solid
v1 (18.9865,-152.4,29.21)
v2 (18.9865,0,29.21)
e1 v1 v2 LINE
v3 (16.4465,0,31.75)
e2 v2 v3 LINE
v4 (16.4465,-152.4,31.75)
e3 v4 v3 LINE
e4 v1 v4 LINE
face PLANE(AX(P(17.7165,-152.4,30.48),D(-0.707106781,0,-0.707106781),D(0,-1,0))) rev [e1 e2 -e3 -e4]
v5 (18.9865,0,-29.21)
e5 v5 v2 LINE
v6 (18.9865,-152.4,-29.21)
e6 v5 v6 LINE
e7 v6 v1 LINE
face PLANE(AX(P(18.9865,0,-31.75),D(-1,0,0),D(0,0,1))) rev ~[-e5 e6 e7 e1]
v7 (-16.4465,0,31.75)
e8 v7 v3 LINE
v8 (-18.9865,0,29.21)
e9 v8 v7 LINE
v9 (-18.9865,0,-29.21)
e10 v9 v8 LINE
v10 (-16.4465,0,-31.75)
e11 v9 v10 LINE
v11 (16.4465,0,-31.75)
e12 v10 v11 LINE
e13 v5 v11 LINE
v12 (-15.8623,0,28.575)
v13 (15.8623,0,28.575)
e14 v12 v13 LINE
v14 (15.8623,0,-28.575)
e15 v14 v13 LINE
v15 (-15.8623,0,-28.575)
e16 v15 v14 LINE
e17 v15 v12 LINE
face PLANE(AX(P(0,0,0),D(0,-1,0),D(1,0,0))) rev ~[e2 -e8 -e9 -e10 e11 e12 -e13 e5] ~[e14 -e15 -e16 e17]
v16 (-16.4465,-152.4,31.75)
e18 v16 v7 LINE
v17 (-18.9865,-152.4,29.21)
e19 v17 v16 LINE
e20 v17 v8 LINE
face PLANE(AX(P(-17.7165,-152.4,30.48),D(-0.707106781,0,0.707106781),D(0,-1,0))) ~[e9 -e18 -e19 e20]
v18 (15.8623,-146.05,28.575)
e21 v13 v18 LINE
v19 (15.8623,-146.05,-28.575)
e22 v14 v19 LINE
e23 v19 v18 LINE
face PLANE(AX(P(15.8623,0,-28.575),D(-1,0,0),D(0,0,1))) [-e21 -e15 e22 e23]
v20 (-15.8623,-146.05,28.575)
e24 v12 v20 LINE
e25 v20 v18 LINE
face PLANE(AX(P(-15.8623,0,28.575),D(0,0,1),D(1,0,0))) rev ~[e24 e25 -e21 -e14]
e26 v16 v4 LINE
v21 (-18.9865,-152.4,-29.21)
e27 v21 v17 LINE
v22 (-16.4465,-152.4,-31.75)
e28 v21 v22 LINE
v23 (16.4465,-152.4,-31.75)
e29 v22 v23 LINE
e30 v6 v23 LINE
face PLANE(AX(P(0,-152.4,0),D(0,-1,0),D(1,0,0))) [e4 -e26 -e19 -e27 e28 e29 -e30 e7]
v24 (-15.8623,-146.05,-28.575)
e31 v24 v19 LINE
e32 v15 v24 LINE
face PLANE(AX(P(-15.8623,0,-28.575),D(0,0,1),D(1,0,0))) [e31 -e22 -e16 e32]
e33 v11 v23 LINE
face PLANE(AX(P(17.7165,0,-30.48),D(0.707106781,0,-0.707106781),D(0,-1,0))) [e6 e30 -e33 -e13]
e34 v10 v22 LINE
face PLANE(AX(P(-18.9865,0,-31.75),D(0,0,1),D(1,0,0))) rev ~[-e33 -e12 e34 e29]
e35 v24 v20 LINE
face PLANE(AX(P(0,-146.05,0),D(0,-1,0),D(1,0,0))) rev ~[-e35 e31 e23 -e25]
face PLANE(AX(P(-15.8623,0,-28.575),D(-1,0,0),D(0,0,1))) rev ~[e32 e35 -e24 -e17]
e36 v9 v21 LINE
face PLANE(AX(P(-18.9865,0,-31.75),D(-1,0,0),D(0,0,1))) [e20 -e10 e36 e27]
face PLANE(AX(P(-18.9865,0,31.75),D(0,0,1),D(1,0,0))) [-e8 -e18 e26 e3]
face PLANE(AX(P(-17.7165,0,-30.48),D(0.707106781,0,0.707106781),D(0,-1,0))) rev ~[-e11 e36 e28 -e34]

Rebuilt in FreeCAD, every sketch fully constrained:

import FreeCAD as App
import Part
import Sketcher

V = App.Vector
Q = App.Units.Quantity


def edges_at(feature, points):
    """Names of the edges that pass closest to the given points."""
    edges = feature.Shape.Edges
    near = lambda p: min(range(len(edges)), key=lambda i: edges[i].distToShape(Part.Vertex(*p))[0])
    return sorted({f"Edge{near(p) + 1}" for p in points})

doc = App.newDocument("Part")
body = doc.addObject("PartDesign::Body", "Body")

# Sketch on XZ plane
sketch1 = body.newObject("Sketcher::SketchObject", "Sketch")
sketch1.AttachmentSupport = (doc.getObject("XZ_Plane"), [""])
sketch1.MapMode = "FlatFace"
sketch1.addGeometry([
    Part.LineSegment(V(-19, 32, 0), V(-19, -32, 0)),  # 0
    Part.LineSegment(V(-19, -32, 0), V(19, -32, 0)),  # 1
    Part.LineSegment(V(19, -32, 0), V(19, 32, 0)),  # 2
    Part.LineSegment(V(19, 32, 0), V(-19, 32, 0)),  # 3
    Part.LineSegment(V(16, -29, 0), V(-16, -29, 0)),  # 4
    Part.LineSegment(V(-16, -29, 0), V(-16, 29, 0)),  # 5
    Part.LineSegment(V(-16, 29, 0), V(16, 29, 0)),  # 6
    Part.LineSegment(V(16, 29, 0), V(16, -29, 0)),  # 7
], False)
sketch1.addConstraint([
    Sketcher.Constraint("Coincident", 0, 2, 1, 1),
    Sketcher.Constraint("Coincident", 1, 2, 2, 1),
    Sketcher.Constraint("Coincident", 2, 2, 3, 1),
    Sketcher.Constraint("Coincident", 3, 2, 0, 1),
    Sketcher.Constraint("Coincident", 4, 2, 5, 1),
    Sketcher.Constraint("Coincident", 5, 2, 6, 1),
    Sketcher.Constraint("Coincident", 6, 2, 7, 1),
    Sketcher.Constraint("Coincident", 7, 2, 4, 1),
    Sketcher.Constraint("Vertical", 0),
    Sketcher.Constraint("Horizontal", 1),
    Sketcher.Constraint("Vertical", 2),
    Sketcher.Constraint("Horizontal", 3),
    Sketcher.Constraint("Horizontal", 4),
    Sketcher.Constraint("Vertical", 5),
    Sketcher.Constraint("Horizontal", 6),
    Sketcher.Constraint("Vertical", 7),
    Sketcher.Constraint("Symmetric", 0, 2, 2, 2, -1, 1),
    Sketcher.Constraint("Symmetric", 4, 2, 6, 2, -1, 1),
    Sketcher.Constraint("DistanceY", 0, 2, 0, 1, Q("2.5 in")),
    Sketcher.Constraint("DistanceY", 5, 1, 5, 2, Q("2.25 in")),
    Sketcher.Constraint("DistanceX", 1, 1, 1, 2, Q("1.495 in")),
    Sketcher.Constraint("DistanceX", 4, 2, 4, 1, Q("1.249 in")),
])
pad1 = body.newObject("PartDesign::Pad", "Pad")
pad1.Profile = sketch1
pad1.Length = Q("6 in")

# Sketch on XZ plane
sketch2 = body.newObject("Sketcher::SketchObject", "Sketch001")
sketch2.AttachmentSupport = (doc.getObject("XZ_Plane"), [""])
sketch2.MapMode = "FlatFace"
sketch2.AttachmentOffset = App.Placement(V(0, 0, 6 * 25.4), App.Rotation())
sketch2.addGeometry([
    Part.LineSegment(V(-19, 32, 0), V(-19, -32, 0)),
    Part.LineSegment(V(-19, -32, 0), V(19, -32, 0)),
    Part.LineSegment(V(19, -32, 0), V(19, 32, 0)),
    Part.LineSegment(V(19, 32, 0), V(-19, 32, 0)),
], False)
sketch2.addConstraint([
    Sketcher.Constraint("Coincident", 0, 2, 1, 1),
    Sketcher.Constraint("Coincident", 1, 2, 2, 1),
    Sketcher.Constraint("Coincident", 2, 2, 3, 1),
    Sketcher.Constraint("Coincident", 3, 2, 0, 1),
    Sketcher.Constraint("Vertical", 0),
    Sketcher.Constraint("Horizontal", 1),
    Sketcher.Constraint("Vertical", 2),
    Sketcher.Constraint("Horizontal", 3),
    Sketcher.Constraint("Symmetric", 0, 2, 2, 2, -1, 1),
    Sketcher.Constraint("DistanceY", 0, 2, 0, 1, Q("2.5 in")),
    Sketcher.Constraint("DistanceX", 1, 1, 1, 2, Q("1.495 in")),
])
pad2 = body.newObject("PartDesign::Pad", "Pad001")
pad2.Profile = sketch2
pad2.Length = Q("0.25 in")
pad2.Reversed = True
doc.recompute()

chamfer = body.newObject("PartDesign::Chamfer", "Chamfer")
chamfer.Base = (pad2, edges_at(pad2, [
    (18.986, -76.2, 31.75),
    (-18.986, -76.2, 31.75),
    (18.986, -76.2, -31.75),
    (-18.986, -76.2, -31.75),
]))
chamfer.Size = Q("0.1 in")

doc.recompute()
